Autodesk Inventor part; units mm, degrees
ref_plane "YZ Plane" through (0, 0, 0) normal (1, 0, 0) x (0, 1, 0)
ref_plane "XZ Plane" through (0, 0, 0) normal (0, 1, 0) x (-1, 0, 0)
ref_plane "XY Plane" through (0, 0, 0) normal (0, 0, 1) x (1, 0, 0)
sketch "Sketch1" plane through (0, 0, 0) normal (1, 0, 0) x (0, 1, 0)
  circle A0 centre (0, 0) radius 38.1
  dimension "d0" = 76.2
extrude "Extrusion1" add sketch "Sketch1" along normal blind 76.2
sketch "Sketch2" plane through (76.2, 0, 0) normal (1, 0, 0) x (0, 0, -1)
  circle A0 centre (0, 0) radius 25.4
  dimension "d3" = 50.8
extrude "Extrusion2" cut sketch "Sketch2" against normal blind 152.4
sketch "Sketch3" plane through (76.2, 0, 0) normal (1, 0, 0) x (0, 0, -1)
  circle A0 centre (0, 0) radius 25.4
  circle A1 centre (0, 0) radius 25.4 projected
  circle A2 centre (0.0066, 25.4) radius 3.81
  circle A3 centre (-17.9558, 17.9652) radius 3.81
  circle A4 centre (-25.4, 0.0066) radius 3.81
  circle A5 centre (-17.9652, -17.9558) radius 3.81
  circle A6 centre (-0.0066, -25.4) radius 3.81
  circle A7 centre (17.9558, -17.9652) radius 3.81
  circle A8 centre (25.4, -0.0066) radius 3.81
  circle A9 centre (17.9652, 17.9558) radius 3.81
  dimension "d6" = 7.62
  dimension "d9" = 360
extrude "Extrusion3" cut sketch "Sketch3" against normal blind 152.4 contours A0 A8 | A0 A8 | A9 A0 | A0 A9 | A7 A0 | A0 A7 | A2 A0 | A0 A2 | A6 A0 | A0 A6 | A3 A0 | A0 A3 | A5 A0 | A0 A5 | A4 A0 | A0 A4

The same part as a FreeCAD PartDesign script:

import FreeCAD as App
import Part
import Sketcher
from FreeCAD import Vector
Q = App.Units.Quantity

doc = App.newDocument("Part")
params = doc.addObject("Spreadsheet::Sheet", "Params")
for row, (alias, value) in enumerate([
    ("sketch1_diameter", "3 in"),
    ("pad1_length", "3 in"),
    ("sketch2_diameter", "2 in"),
    ("pocket1_length", "6 in"),
    ("sketch3_diameter", "0.3 in"),
    ("pocket2_length", "6 in"),
], start=1):
    params.set(f"A{row}", alias)
    params.set(f"B{row}", "=" + value)
    params.setAlias(f"B{row}", alias)

body = doc.addObject("PartDesign::Body", "Body")

sketch1 = body.newObject("Sketcher::SketchObject", "Sketch")
sketch1.AttachmentSupport = (doc.getObject("YZ_Plane"), [""])
sketch1.MapMode = "FlatFace"
sketch1.addGeometry(Part.Circle(Vector(0, 0, 0), Vector(0, 0, 1), 38), False)
sketch1.addConstraint(Sketcher.Constraint("Coincident", 0, 3, -1, 1))
sketch1.addConstraint(Sketcher.Constraint("Diameter", 0, Q("3 in")))
sketch1.setExpression("Constraints[1]", "Params.sketch1_diameter")
pad1 = body.newObject("PartDesign::Pad", "Pad")
pad1.Profile = sketch1
pad1.setExpression("Length", "Params.pad1_length")

sketch2 = body.newObject("Sketcher::SketchObject", "Sketch001")
sketch2.AttachmentSupport = (doc.getObject("YZ_Plane"), [""])
sketch2.MapMode = "FlatFace"
sketch2.AttachmentOffset = App.Placement(Vector(0, 0, 3 * 25.4), App.Rotation())
sketch2.addGeometry(Part.Circle(Vector(0, 0, 0), Vector(0, 0, 1), 25), False)
sketch2.addConstraint(Sketcher.Constraint("Coincident", 0, 3, -1, 1))
sketch2.addConstraint(Sketcher.Constraint("Diameter", 0, Q("2 in")))
sketch2.setExpression("Constraints[1]", "Params.sketch2_diameter")
pocket1 = body.newObject("PartDesign::Pocket", "Pocket")
pocket1.Profile = sketch2
pocket1.setExpression("Length", "Params.pocket1_length")

sketch3 = body.newObject("Sketcher::SketchObject", "Sketch002")
sketch3.AttachmentSupport = (doc.getObject("YZ_Plane"), [""])
sketch3.MapMode = "FlatFace"
sketch3.AttachmentOffset = App.Placement(Vector(0, 0, 3 * 25.4), App.Rotation())
sketch3.addGeometry(Part.Circle(Vector(0, -25.4, 0), Vector(0, 0, 1), 3.8), False)
sketch3.addGeometry(Part.Circle(Vector(18, -18, 0), Vector(0, 0, 1), 3.8), False)
sketch3.addGeometry(Part.Circle(Vector(-18, -18, 0), Vector(0, 0, 1), 3.8), False)
sketch3.addGeometry(Part.Circle(Vector(25.4, 0, 0), Vector(0, 0, 1), 3.8), False)
sketch3.addGeometry(Part.Circle(Vector(-25.4, 0, 0), Vector(0, 0, 1), 3.8), False)
sketch3.addGeometry(Part.Circle(Vector(18, 18, 0), Vector(0, 0, 1), 3.8), False)
sketch3.addGeometry(Part.Circle(Vector(-18, 18, 0), Vector(0, 0, 1), 3.8), False)
sketch3.addGeometry(Part.Circle(Vector(0, 25.4, 0), Vector(0, 0, 1), 3.8), False)
sketch3.addConstraint(Sketcher.Constraint("Equal", 0, 1))
sketch3.addConstraint(Sketcher.Constraint("Equal", 1, 2))
sketch3.addConstraint(Sketcher.Constraint("Equal", 2, 3))
sketch3.addConstraint(Sketcher.Constraint("Equal", 3, 4))
sketch3.addConstraint(Sketcher.Constraint("Equal", 4, 5))
sketch3.addConstraint(Sketcher.Constraint("Equal", 5, 6))
sketch3.addConstraint(Sketcher.Constraint("Equal", 6, 7))
sketch3.addConstraint(Sketcher.Constraint("Symmetric", 3, 3, 4, 3, -1, 1))
sketch3.addConstraint(Sketcher.Constraint("Symmetric", 2, 3, 5, 3, -1, 1))
sketch3.addConstraint(Sketcher.Constraint("Symmetric", 1, 3, 6, 3, -1, 1))
sketch3.addConstraint(Sketcher.Constraint("Symmetric", 0, 3, 7, 3, -1, 1))
sketch3.addConstraint(Sketcher.Constraint("Diameter", 0, Q("0.3 in")))
sketch3.addConstraint(Sketcher.Constraint("DistanceY", 0, 3, -1, 1, Q("1 in")))
sketch3.addConstraint(Sketcher.Constraint("DistanceX", -1, 1, 3, 3, Q("1 in")))
sketch3.addConstraint(Sketcher.Constraint("DistanceY", 1, 3, -1, 1, Q("0.7073 in")))
sketch3.addConstraint(Sketcher.Constraint("DistanceX", 2, 3, -1, 1, Q("0.7073 in")))
sketch3.addConstraint(Sketcher.Constraint("DistanceX", 0, 3, -1, 1, Q("0.0066 mm")))
sketch3.addConstraint(Sketcher.Constraint("DistanceX", -1, 1, 1, 3, Q("17.9558 mm")))
sketch3.addConstraint(Sketcher.Constraint("DistanceY", 2, 3, -1, 1, Q("17.9558 mm")))
sketch3.addConstraint(Sketcher.Constraint("DistanceY", 3, 3, -1, 1, Q("0.0066 mm")))
sketch3.setExpression("Constraints[11]", "Params.sketch3_diameter")
pocket2 = body.newObject("PartDesign::Pocket", "Pocket001")
pocket2.Profile = sketch3
pocket2.setExpression("Length", "Params.pocket2_length")

doc.recompute()
